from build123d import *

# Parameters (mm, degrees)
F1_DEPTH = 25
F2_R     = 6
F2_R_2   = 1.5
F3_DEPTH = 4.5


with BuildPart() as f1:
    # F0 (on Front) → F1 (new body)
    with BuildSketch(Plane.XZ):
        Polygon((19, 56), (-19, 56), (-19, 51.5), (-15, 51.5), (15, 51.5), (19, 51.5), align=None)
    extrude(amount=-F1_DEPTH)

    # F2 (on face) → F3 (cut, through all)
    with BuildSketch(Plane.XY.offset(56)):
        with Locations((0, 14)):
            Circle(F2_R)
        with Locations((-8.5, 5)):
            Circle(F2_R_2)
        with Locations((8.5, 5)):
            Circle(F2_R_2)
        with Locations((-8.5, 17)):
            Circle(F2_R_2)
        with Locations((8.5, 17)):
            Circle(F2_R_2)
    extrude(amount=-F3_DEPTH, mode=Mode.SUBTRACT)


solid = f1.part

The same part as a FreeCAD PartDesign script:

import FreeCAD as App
import Part
import Sketcher

V = App.Vector


def add_polygon(sketch, points):
    """Adds a closed chain of lines whose ends are joined by coincident constraints."""
    first, n = sketch.GeometryCount, len(points)
    for a, b in zip(points, points[1:] + points[:1]):
        sketch.addGeometry(Part.LineSegment(App.Vector(*a, 0), App.Vector(*b, 0)), False)
    for i in range(n):
        sketch.addConstraint(Sketcher.Constraint("Coincident", first + i, 2, first + (i + 1) % n, 1))

doc = App.newDocument("Part")
body = doc.addObject("PartDesign::Body", "Body")

# Sketch on XZ plane
sketch1 = body.newObject("Sketcher::SketchObject", "Sketch")
sketch1.AttachmentSupport = (doc.getObject("XZ_Plane"), [""])
sketch1.MapMode = "FlatFace"
add_polygon(sketch1, [(19, 56), (-19, 56), (-19, 51.5), (19, 51.5)])  # lines 0-3
sketch1.addConstraint([
    Sketcher.Constraint("Horizontal", 0),
    Sketcher.Constraint("Vertical", 1),
    Sketcher.Constraint("Horizontal", 2),
    Sketcher.Constraint("Vertical", 3),
    Sketcher.Constraint("DistanceX", 0, 2, 0, 1, 38.0),
    Sketcher.Constraint("DistanceY", 1, 2, 1, 1, 4.5),
    Sketcher.Constraint("DistanceX", 0, 2, -1, 1, 19.0),
    Sketcher.Constraint("DistanceY", -1, 1, 0, 2, 56.0),
])
pad1 = body.newObject("PartDesign::Pad", "Pad")
pad1.Profile = sketch1
pad1.Length = 25
pad1.Reversed = True

# Sketch on XY plane
sketch2 = body.newObject("Sketcher::SketchObject", "Sketch001")
sketch2.AttachmentSupport = (doc.getObject("XY_Plane"), [""])
sketch2.MapMode = "FlatFace"
sketch2.AttachmentOffset = App.Placement(V(0, 0, 56), App.Rotation())
sketch2.addGeometry([
    Part.Circle(V(0, 14, 0), V(0, 0, 1), 6),  # 0
    Part.Circle(V(-8.5, 5, 0), V(0, 0, 1), 1.5),  # 1
    Part.Circle(V(8.5, 5, 0), V(0, 0, 1), 1.5),  # 2
    Part.Circle(V(-8.5, 17, 0), V(0, 0, 1), 1.5),  # 3
    Part.Circle(V(8.5, 17, 0), V(0, 0, 1), 1.5),  # 4
], False)
sketch2.addConstraint([
    Sketcher.Constraint("Equal", 1, 2),
    Sketcher.Constraint("Equal", 2, 3),
    Sketcher.Constraint("Equal", 3, 4),
    Sketcher.Constraint("Symmetric", 1, 3, 2, 3, -2),
    Sketcher.Constraint("Symmetric", 3, 3, 4, 3, -2),
    Sketcher.Constraint("PointOnObject", 0, 3, -2),
    Sketcher.Constraint("Vertical", 1, 3, 3, 3),
    Sketcher.Constraint("Diameter", 0, 12.0),
    Sketcher.Constraint("Diameter", 1, 3.0),
    Sketcher.Constraint("DistanceY", -1, 1, 0, 3, 14.0),
    Sketcher.Constraint("DistanceY", -1, 1, 1, 3, 5.0),
    Sketcher.Constraint("DistanceY", -1, 1, 3, 3, 17.0),
    Sketcher.Constraint("DistanceX", 1, 3, 2, 3, 17.0),
])
pocket1 = body.newObject("PartDesign::Pocket", "Pocket")
pocket1.Profile = sketch2
pocket1.Type = "ThroughAll"

doc.recompute()
